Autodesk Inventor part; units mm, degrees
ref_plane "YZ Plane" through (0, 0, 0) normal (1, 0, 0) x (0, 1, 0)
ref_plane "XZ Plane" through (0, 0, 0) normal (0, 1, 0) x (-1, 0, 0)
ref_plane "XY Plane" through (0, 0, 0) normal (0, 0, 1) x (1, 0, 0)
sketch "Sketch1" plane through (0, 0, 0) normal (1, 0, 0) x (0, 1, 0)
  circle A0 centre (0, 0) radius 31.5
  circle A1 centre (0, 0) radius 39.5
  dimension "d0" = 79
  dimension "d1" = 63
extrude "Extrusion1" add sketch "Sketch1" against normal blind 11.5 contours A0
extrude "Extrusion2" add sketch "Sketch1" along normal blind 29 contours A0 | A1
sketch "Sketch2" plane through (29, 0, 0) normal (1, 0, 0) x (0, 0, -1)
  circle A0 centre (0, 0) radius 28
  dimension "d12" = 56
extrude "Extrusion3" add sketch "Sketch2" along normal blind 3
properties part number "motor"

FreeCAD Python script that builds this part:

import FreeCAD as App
import Part
import Sketcher

V = App.Vector
Q = App.Units.Quantity

doc = App.newDocument("Part")
body = doc.addObject("PartDesign::Body", "Body")

sketch1 = body.newObject("Sketcher::SketchObject", "Sketch")
sketch1.AttachmentSupport = (doc.getObject("YZ_Plane"), [""])
sketch1.MapMode = "FlatFace"
sketch1.addGeometry(Part.Circle(V(0, 0, 0), V(0, 0, 1), 32), False)
sketch1.addConstraint(Sketcher.Constraint("Coincident", 0, 3, -1, 1))
sketch1.addConstraint(Sketcher.Constraint("Diameter", 0, Q("63 mm")))
pad1 = body.newObject("PartDesign::Pad", "Pad")
pad1.Profile = sketch1
pad1.Length = 11.5
pad1.Reversed = True

sketch2 = body.newObject("Sketcher::SketchObject", "Sketch001")
sketch2.AttachmentSupport = (doc.getObject("YZ_Plane"), [""])
sketch2.MapMode = "FlatFace"
sketch2.addGeometry(Part.Circle(V(0, 0, 0), V(0, 0, 1), 40), False)
sketch2.addConstraint(Sketcher.Constraint("Coincident", 0, 3, -1, 1))
sketch2.addConstraint(Sketcher.Constraint("Diameter", 0, Q("79 mm")))
pad2 = body.newObject("PartDesign::Pad", "Pad001")
pad2.Profile = sketch2
pad2.Length = 29

sketch3 = body.newObject("Sketcher::SketchObject", "Sketch002")
sketch3.AttachmentSupport = (doc.getObject("YZ_Plane"), [""])
sketch3.MapMode = "FlatFace"
sketch3.AttachmentOffset = App.Placement(V(0, 0, 29), App.Rotation())
sketch3.addGeometry(Part.Circle(V(0, 0, 0), V(0, 0, 1), 28), False)
sketch3.addConstraint(Sketcher.Constraint("Coincident", 0, 3, -1, 1))
sketch3.addConstraint(Sketcher.Constraint("Diameter", 0, Q("56 mm")))
pad3 = body.newObject("PartDesign::Pad", "Pad002")
pad3.Profile = sketch3
pad3.Length = 3

doc.recompute()
